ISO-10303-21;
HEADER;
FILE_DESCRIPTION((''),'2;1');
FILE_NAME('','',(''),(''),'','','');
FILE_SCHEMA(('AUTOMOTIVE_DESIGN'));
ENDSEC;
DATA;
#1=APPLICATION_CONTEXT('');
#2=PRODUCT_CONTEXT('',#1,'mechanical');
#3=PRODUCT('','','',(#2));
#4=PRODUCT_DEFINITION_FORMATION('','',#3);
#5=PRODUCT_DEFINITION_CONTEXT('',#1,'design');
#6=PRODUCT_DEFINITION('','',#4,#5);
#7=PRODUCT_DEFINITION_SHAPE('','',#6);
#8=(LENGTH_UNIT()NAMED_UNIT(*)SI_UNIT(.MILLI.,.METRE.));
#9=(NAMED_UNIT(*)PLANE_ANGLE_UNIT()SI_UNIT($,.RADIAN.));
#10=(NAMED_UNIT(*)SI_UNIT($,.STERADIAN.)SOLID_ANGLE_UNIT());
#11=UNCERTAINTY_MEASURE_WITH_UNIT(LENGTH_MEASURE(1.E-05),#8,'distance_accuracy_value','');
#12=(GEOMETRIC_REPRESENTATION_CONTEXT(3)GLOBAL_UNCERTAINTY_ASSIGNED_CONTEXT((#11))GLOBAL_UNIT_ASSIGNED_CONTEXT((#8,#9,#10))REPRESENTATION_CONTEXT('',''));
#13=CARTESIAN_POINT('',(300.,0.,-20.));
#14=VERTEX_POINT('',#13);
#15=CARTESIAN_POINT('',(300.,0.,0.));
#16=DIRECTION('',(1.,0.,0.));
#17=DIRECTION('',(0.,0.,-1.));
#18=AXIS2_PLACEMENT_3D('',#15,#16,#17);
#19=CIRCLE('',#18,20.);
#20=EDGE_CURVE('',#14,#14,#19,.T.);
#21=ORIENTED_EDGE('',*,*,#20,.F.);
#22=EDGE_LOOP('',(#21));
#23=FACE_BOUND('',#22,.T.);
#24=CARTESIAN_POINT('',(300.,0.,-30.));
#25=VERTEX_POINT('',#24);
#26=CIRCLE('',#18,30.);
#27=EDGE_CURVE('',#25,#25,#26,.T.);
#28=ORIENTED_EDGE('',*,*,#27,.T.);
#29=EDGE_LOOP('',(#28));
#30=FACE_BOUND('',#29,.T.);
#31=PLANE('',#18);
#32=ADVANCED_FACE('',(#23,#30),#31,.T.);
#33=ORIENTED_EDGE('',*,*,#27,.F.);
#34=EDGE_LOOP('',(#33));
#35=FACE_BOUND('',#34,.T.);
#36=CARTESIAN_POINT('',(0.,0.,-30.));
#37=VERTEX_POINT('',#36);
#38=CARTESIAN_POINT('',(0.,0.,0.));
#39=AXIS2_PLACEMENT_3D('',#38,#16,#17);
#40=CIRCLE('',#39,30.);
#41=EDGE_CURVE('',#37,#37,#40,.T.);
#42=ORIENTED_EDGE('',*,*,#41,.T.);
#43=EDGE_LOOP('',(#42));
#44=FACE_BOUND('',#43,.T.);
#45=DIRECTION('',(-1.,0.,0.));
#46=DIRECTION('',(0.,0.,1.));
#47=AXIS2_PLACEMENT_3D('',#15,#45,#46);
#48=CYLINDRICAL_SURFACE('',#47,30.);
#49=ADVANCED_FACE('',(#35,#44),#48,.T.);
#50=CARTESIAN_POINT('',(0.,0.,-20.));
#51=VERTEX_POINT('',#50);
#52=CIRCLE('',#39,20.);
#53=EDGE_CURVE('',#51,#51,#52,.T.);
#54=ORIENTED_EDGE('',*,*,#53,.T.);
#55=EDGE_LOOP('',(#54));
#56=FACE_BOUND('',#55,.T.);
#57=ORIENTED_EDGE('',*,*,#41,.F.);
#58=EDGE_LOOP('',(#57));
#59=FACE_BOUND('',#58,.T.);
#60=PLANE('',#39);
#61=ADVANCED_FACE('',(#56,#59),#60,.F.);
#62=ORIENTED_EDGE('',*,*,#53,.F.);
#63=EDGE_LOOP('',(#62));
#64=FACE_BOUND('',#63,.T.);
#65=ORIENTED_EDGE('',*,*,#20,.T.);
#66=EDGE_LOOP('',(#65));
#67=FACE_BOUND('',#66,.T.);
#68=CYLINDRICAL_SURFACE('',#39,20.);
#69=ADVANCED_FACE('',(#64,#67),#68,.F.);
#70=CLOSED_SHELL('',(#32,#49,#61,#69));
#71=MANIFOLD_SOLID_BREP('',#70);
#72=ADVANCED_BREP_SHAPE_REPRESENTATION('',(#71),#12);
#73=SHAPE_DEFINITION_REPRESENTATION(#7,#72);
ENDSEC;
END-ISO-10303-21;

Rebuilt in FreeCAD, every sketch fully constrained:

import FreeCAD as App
import Part
import Sketcher

V = App.Vector

doc = App.newDocument("Part")
body = doc.addObject("PartDesign::Body", "Body")

sketch1 = doc.addObject("Sketcher::SketchObject", "Sketch")
body.addObject(sketch1)
sketch1.AttachmentSupport = (doc.YZ_Plane, [""])
sketch1.MapMode = "FlatFace"
sketch1.addGeometry(Part.Circle(V(0, 0, 0), V(0, 0, 1), 30), False)
sketch1.addConstraint(Sketcher.Constraint("Coincident", 0, 3, -1, 1))
sketch1.addConstraint(Sketcher.Constraint("Diameter", 0, 60.0))
pad1 = doc.addObject("PartDesign::Pad", "Pad")
body.addObject(pad1)
pad1.Profile = sketch1
pad1.Length = 300

sketch2 = doc.addObject("Sketcher::SketchObject", "Sketch001")
body.addObject(sketch2)
sketch2.AttachmentSupport = (doc.YZ_Plane, [""])
sketch2.MapMode = "FlatFace"
sketch2.AttachmentOffset = App.Placement(V(0, 0, 300), App.Rotation())
sketch2.addGeometry(Part.Circle(V(0, 0, 0), V(0, 0, 1), 20), False)
sketch2.addConstraint(Sketcher.Constraint("Coincident", 0, 3, -1, 1))
sketch2.addConstraint(Sketcher.Constraint("Diameter", 0, 40.0))
pocket1 = doc.addObject("PartDesign::Pocket", "Pocket")
body.addObject(pocket1)
pocket1.Profile = sketch2
pocket1.Length = 300

doc.recompute()
